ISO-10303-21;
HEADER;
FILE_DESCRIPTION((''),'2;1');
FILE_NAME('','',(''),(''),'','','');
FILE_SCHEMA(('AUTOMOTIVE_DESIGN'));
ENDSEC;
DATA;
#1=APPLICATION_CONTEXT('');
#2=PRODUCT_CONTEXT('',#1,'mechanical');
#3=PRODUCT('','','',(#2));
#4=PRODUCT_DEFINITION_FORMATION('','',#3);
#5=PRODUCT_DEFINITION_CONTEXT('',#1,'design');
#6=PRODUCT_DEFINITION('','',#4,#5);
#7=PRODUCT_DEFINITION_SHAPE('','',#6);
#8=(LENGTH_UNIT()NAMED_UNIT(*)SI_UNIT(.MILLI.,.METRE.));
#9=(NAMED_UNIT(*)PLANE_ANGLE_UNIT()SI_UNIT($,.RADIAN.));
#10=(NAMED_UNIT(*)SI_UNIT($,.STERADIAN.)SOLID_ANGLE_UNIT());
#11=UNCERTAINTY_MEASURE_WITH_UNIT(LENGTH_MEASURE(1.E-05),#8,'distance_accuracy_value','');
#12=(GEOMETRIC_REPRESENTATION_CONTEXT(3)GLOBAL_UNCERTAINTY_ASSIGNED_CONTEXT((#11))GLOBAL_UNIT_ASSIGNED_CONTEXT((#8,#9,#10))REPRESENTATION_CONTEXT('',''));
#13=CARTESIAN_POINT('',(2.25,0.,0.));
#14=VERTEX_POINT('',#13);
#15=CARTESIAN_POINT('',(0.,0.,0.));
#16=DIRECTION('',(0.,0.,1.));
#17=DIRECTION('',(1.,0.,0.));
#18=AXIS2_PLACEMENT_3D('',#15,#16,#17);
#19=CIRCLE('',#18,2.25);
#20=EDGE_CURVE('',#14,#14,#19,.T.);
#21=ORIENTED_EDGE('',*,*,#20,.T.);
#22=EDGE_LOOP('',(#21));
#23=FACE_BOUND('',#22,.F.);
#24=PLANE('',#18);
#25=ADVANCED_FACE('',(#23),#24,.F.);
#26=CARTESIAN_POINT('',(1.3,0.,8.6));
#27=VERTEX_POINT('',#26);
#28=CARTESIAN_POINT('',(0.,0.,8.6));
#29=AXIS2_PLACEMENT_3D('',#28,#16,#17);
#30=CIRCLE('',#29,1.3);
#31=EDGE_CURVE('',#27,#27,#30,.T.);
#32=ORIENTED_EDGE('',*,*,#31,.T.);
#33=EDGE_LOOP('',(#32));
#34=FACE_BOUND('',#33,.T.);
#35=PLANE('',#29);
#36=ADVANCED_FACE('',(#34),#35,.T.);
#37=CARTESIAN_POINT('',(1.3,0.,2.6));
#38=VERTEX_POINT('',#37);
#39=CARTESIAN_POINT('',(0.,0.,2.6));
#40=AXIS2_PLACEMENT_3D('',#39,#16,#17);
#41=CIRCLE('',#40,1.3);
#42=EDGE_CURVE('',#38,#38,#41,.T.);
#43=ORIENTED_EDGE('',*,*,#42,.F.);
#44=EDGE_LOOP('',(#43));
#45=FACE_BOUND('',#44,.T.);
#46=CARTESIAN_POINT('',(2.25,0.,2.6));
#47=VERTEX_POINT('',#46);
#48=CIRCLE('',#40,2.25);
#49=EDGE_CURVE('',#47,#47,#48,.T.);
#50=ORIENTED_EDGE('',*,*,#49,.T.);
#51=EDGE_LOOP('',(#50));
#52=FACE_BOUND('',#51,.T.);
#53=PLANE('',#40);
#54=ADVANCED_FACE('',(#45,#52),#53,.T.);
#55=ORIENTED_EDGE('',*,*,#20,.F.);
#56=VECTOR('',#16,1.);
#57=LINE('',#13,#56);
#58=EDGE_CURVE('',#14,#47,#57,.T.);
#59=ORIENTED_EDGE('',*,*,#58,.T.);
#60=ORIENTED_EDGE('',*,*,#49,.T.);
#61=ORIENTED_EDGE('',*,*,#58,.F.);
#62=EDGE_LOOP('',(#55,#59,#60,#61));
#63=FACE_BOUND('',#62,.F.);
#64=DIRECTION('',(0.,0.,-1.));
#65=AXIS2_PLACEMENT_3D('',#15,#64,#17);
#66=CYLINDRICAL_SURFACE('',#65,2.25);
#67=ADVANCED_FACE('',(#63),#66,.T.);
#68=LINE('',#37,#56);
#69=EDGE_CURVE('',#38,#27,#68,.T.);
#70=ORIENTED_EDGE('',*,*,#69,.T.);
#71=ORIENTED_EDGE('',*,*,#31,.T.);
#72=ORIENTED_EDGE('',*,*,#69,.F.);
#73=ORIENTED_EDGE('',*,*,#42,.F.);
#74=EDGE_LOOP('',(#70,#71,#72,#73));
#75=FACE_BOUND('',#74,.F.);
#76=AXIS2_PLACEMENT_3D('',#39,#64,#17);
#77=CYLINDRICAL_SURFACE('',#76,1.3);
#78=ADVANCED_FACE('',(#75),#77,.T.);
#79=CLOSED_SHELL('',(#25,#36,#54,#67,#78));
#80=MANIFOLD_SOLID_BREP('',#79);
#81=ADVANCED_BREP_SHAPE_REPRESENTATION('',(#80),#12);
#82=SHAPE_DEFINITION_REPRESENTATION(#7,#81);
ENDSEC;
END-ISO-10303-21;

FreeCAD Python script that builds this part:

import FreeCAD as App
import Part
import Sketcher
from FreeCAD import Vector
Q = App.Units.Quantity

doc = App.newDocument("Part")
body = doc.addObject("PartDesign::Body", "Body")

# Sketch on XY plane
sketch1 = doc.addObject("Sketcher::SketchObject", "Sketch")
body.addObject(sketch1)
sketch1.AttachmentSupport = (doc.XY_Plane, [""])
sketch1.MapMode = "FlatFace"
sketch1.addGeometry(Part.Circle(Vector(0, 0, 0), Vector(0, 0, 1), 2.25), False)
sketch1.addConstraint([
    Sketcher.Constraint("Coincident", 0, 3, -1, 1),
    Sketcher.Constraint("Diameter", 0, Q("4.5 mm")),
])
pad1 = doc.addObject("PartDesign::Pad", "Pad")
body.addObject(pad1)
pad1.Profile = sketch1
pad1.Length = 2.6

# Sketch on XY plane
sketch2 = doc.addObject("Sketcher::SketchObject", "Sketch001")
body.addObject(sketch2)
sketch2.AttachmentSupport = (doc.XY_Plane, [""])
sketch2.MapMode = "FlatFace"
sketch2.AttachmentOffset = App.Placement(Vector(0, 0, 2.6), App.Rotation())
sketch2.addGeometry(Part.Circle(Vector(0, 0, 0), Vector(0, 0, 1), 1.3), False)
sketch2.addConstraint([
    Sketcher.Constraint("Coincident", 0, 3, -1, 1),
    Sketcher.Constraint("Diameter", 0, Q("2.6 mm")),
])
pad2 = doc.addObject("PartDesign::Pad", "Pad001")
body.addObject(pad2)
pad2.Profile = sketch2
pad2.Length = 6

doc.recompute()
